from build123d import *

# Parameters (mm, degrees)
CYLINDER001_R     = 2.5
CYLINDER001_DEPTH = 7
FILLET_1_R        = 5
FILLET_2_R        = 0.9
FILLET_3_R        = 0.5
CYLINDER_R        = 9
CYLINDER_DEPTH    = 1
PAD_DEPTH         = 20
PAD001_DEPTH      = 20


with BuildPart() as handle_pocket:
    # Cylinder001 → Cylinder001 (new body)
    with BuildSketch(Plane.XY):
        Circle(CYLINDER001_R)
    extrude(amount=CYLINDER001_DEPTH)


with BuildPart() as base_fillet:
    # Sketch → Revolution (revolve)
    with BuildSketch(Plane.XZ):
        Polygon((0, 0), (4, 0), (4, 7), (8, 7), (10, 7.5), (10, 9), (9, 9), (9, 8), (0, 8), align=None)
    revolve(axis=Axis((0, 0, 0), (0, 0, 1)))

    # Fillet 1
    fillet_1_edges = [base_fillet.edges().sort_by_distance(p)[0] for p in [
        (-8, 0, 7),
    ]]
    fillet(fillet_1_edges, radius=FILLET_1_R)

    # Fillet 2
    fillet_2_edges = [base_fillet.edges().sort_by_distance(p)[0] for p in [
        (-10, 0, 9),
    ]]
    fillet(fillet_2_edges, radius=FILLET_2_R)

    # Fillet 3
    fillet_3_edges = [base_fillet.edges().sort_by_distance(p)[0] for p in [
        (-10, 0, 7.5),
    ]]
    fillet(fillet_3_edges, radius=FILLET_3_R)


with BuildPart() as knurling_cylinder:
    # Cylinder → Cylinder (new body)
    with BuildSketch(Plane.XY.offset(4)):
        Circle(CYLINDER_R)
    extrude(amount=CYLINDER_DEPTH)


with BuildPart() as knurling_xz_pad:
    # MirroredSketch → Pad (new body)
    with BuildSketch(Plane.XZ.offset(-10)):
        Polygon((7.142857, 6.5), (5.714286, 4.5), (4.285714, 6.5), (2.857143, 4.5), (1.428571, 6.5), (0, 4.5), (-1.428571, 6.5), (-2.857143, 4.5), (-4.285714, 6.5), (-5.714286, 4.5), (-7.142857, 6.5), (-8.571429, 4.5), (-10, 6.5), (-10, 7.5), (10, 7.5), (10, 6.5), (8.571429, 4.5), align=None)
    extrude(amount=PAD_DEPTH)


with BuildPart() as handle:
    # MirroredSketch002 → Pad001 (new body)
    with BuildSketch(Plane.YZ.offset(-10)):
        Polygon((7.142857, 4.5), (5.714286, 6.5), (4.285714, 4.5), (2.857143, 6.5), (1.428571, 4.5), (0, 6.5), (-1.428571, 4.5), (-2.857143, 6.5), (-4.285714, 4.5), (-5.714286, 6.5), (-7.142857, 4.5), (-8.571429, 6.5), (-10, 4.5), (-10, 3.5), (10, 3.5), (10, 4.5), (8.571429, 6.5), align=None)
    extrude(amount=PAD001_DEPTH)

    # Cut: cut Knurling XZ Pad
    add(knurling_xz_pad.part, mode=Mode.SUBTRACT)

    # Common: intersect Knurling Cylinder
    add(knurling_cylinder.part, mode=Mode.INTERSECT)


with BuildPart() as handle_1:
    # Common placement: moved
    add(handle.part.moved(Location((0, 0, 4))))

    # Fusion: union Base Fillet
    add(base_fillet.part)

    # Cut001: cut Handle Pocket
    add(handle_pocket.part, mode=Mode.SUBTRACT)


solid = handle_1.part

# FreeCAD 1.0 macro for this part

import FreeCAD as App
import Part
import Sketcher

V = App.Vector
Q = App.Units.Quantity


def edges_at(feature, points):
    """Names of the edges that pass closest to the given points."""
    edges = feature.Shape.Edges
    near = lambda p: min(range(len(edges)), key=lambda i: edges[i].distToShape(Part.Vertex(*p))[0])
    return sorted({f"Edge{near(p) + 1}" for p in points})


def add_polygon(sketch, points):
    """Adds a closed chain of lines whose ends are joined by coincident constraints."""
    first, n = sketch.GeometryCount, len(points)
    for a, b in zip(points, points[1:] + points[:1]):
        sketch.addGeometry(Part.LineSegment(App.Vector(*a, 0), App.Vector(*b, 0)), False)
    for i in range(n):
        sketch.addConstraint(Sketcher.Constraint("Coincident", first + i, 2, first + (i + 1) % n, 1))

doc = App.newDocument("Part")
body = doc.addObject("PartDesign::Body", "Body")

# Sketch on XY plane
sketch1 = body.newObject("Sketcher::SketchObject", "Sketch")
sketch1.AttachmentSupport = (doc.getObject("XY_Plane"), [""])
sketch1.MapMode = "FlatFace"
sketch1.addGeometry(Part.Circle(V(0, 0, 0), V(0, 0, 1), 2.5), False)
sketch1.addConstraint([
    Sketcher.Constraint("Coincident", 0, 3, -1, 1),
    Sketcher.Constraint("Diameter", 0, Q("5 mm")),
])
pad1 = body.newObject("PartDesign::Pad", "Pad")
pad1.Profile = sketch1
pad1.Length = 7
body2 = doc.addObject("PartDesign::Body", "Body001")

# Sketch on XZ plane
sketch2 = body2.newObject("Sketcher::SketchObject", "Sketch001")
sketch2.AttachmentSupport = (doc.getObject("XZ_Plane001"), [""])
sketch2.MapMode = "FlatFace"
add_polygon(sketch2, [(0, 0), (4, 0), (4, 7), (8, 7), (10, 7.5), (10, 9), (9, 9), (9, 8), (0, 8)])  # lines 0-8
sketch2.addConstraint([
    Sketcher.Constraint("Horizontal", 0),
    Sketcher.Constraint("Vertical", 1),
    Sketcher.Constraint("Horizontal", 2),
    Sketcher.Constraint("Vertical", 4),
    Sketcher.Constraint("Horizontal", 5),
    Sketcher.Constraint("Vertical", 6),
    Sketcher.Constraint("Horizontal", 7),
    Sketcher.Constraint("Vertical", 8),
    Sketcher.Constraint("Coincident", 8, 2, -1, 1),
    Sketcher.Constraint("Equal", 0, 2),
    Sketcher.Constraint("Equal", 5, 6),
    Sketcher.Constraint("DistanceX", 0, 1, 0, 2, Q("4 mm")),
    Sketcher.Constraint("DistanceX", 5, 2, 5, 1, Q("1 mm")),
    Sketcher.Constraint("DistanceX", 7, 2, 7, 1, Q("9 mm")),
    Sketcher.Constraint("DistanceY", 1, 1, 1, 2, Q("7 mm")),
    Sketcher.Constraint("DistanceY", 8, 2, 8, 1, Q("8 mm")),
    Sketcher.Constraint("DistanceY", 4, 1, 4, 2, Q("1.5 mm")),
])
revolution = body2.newObject("PartDesign::Revolution", "Revolution")
revolution.Profile = sketch2
revolution.ReferenceAxis = (sketch2, ["V_Axis"])
revolution.Angle = 360
doc.recompute()

fillet = body2.newObject("PartDesign::Fillet", "Fillet")
fillet.Base = (revolution, edges_at(revolution, [(-8, 0, 7)]))
fillet.Radius = 5
doc.recompute()

fillet2 = body2.newObject("PartDesign::Fillet", "Fillet001")
fillet2.Base = (fillet, edges_at(fillet, [(-10, 0, 9)]))
fillet2.Radius = 0.9
doc.recompute()

fillet3 = body2.newObject("PartDesign::Fillet", "Fillet002")
fillet3.Base = (fillet2, edges_at(fillet2, [(-10, 0, 7.5)]))
fillet3.Radius = 0.5
body3 = doc.addObject("PartDesign::Body", "Body002")

# Sketch on XY plane
sketch3 = body3.newObject("Sketcher::SketchObject", "Sketch002")
sketch3.AttachmentSupport = (doc.getObject("XY_Plane002"), [""])
sketch3.MapMode = "FlatFace"
sketch3.AttachmentOffset = App.Placement(V(0, 0, 4), App.Rotation())
sketch3.addGeometry(Part.Circle(V(0, 0, 0), V(0, 0, 1), 9), False)
sketch3.addConstraint([
    Sketcher.Constraint("Coincident", 0, 3, -1, 1),
    Sketcher.Constraint("Diameter", 0, Q("18 mm")),
])
pad2 = body3.newObject("PartDesign::Pad", "Pad001")
pad2.Profile = sketch3
pad2.Length = 1
body4 = doc.addObject("PartDesign::Body", "Body003")

# Sketch on XZ plane
sketch4 = body4.newObject("Sketcher::SketchObject", "Sketch003")
sketch4.AttachmentSupport = (doc.getObject("XZ_Plane003"), [""])
sketch4.MapMode = "FlatFace"
sketch4.AttachmentOffset = App.Placement(V(0, 0, -10), App.Rotation())
add_polygon(sketch4, [(5.7, 4.5), (7.1, 6.5), (8.6, 4.5), (10, 6.5), (10, 7.5), (-10, 7.5), (-10, 6.5), (-8.6, 4.5), (-7.1, 6.5), (-5.7, 4.5), (-4.3, 6.5), (-2.9, 4.5), (-1.4, 6.5), (0, 4.5), (1.4, 6.5), (2.9, 4.5), (4.3, 6.5)])  # lines 0-16
sketch4.addConstraint([
    Sketcher.Constraint("Vertical", 3),
    Sketcher.Constraint("Horizontal", 4),
    Sketcher.Constraint("Vertical", 5),
    Sketcher.Constraint("Symmetric", 2, 2, 5, 2, -2),
    Sketcher.Constraint("Symmetric", 1, 2, 6, 2, -2),
    Sketcher.Constraint("Symmetric", 0, 2, 7, 2, -2),
    Sketcher.Constraint("Symmetric", 11, 2, 13, 2, -2),
    Sketcher.Constraint("Symmetric", 10, 2, 14, 2, -2),
    Sketcher.Constraint("Symmetric", 9, 2, 15, 2, -2),
    Sketcher.Constraint("Symmetric", 8, 2, 16, 2, -2),
    Sketcher.Constraint("PointOnObject", 12, 2, -2),
    Sketcher.Constraint("Parallel", 0, 2),
    Sketcher.Constraint("Parallel", 1, 6),
    Sketcher.Constraint("Parallel", 7, 9),
    Sketcher.Constraint("Parallel", 8, 10),
    Sketcher.Constraint("Parallel", 9, 11),
    Sketcher.Constraint("Parallel", 10, 12),
    Sketcher.Constraint("Horizontal", 0, 2, 2, 2),
    Sketcher.Constraint("Horizontal", 6, 2, 8, 2),
    Sketcher.Constraint("Horizontal", 7, 2, 9, 2),
    Sketcher.Constraint("Horizontal", 8, 2, 10, 2),
    Sketcher.Constraint("Horizontal", 9, 2, 11, 2),
    Sketcher.Constraint("Horizontal", 10, 2, 12, 2),
    Sketcher.Constraint("DistanceX", 4, 2, 4, 1, Q("20 mm")),
    Sketcher.Constraint("DistanceY", 3, 1, 3, 2, Q("1 mm")),
    Sketcher.Constraint("DistanceY", 1, 2, 0, 2, Q("2 mm")),
    Sketcher.Constraint("DistanceY", -1, 1, 0, 2, Q("6.5 mm")),
])
pad3 = body4.newObject("PartDesign::Pad", "Pad002")
pad3.Profile = sketch4
pad3.Length = 20
body5 = doc.addObject("PartDesign::Body", "Body004")

# Sketch on YZ plane
sketch5 = body5.newObject("Sketcher::SketchObject", "Sketch004")
sketch5.AttachmentSupport = (doc.getObject("YZ_Plane004"), [""])
sketch5.MapMode = "FlatFace"
sketch5.AttachmentOffset = App.Placement(V(0, 0, -10), App.Rotation())
add_polygon(sketch5, [(7.1, 4.5), (5.7, 6.5), (4.3, 4.5), (2.9, 6.5), (1.4, 4.5), (0, 6.5), (-1.4, 4.5), (-2.9, 6.5), (-4.3, 4.5), (-5.7, 6.5), (-7.1, 4.5), (-8.6, 6.5), (-10, 4.5), (-10, 3.5), (10, 3.5), (10, 4.5), (8.6, 6.5)])  # lines 0-16
sketch5.addConstraint([
    Sketcher.Constraint("Vertical", 12),
    Sketcher.Constraint("Horizontal", 13),
    Sketcher.Constraint("Vertical", 14),
    Sketcher.Constraint("Symmetric", 3, 2, 5, 2, -2),
    Sketcher.Constraint("Symmetric", 2, 2, 6, 2, -2),
    Sketcher.Constraint("Symmetric", 1, 2, 7, 2, -2),
    Sketcher.Constraint("Symmetric", 0, 2, 8, 2, -2),
    Sketcher.Constraint("Symmetric", 11, 2, 14, 2, -2),
    Sketcher.Constraint("Symmetric", 10, 2, 15, 2, -2),
    Sketcher.Constraint("Symmetric", 9, 2, 16, 2, -2),
    Sketcher.Constraint("PointOnObject", 4, 2, -2),
    Sketcher.Constraint("Parallel", 0, 2),
    Sketcher.Constraint("Parallel", 1, 3),
    Sketcher.Constraint("Parallel", 2, 4),
    Sketcher.Constraint("Parallel", 3, 5),
    Sketcher.Constraint("Parallel", 8, 10),
    Sketcher.Constraint("Parallel", 9, 11),
    Sketcher.Constraint("Horizontal", 0, 2, 2, 2),
    Sketcher.Constraint("Horizontal", 1, 2, 3, 2),
    Sketcher.Constraint("Horizontal", 2, 2, 4, 2),
    Sketcher.Constraint("Horizontal", 7, 2, 9, 2),
    Sketcher.Constraint("Horizontal", 8, 2, 10, 2),
    Sketcher.Constraint("Horizontal", 9, 2, 11, 2),
    Sketcher.Constraint("DistanceX", 13, 1, 13, 2, Q("20 mm")),
    Sketcher.Constraint("DistanceY", 12, 2, 12, 1, Q("1 mm")),
    Sketcher.Constraint("DistanceY", 1, 2, 0, 2, Q("2 mm")),
    Sketcher.Constraint("DistanceY", -1, 1, 0, 2, Q("6.5 mm")),
])
pad4 = body5.newObject("PartDesign::Pad", "Pad003")
pad4.Profile = sketch5
pad4.Length = 20
doc.recompute()

boolean = body5.newObject("PartDesign::Boolean", "Boolean")
boolean.Type = "Cut"
boolean.addObjects([body4])
doc.recompute()

boolean2 = body5.newObject("PartDesign::Boolean", "Boolean001")
boolean2.Type = "Common"
boolean2.addObjects([body3])
body6 = doc.addObject("PartDesign::Body", "Body005")
doc.recompute()

body5.Placement = App.Placement(V(0, 0, 4), App.Rotation(V(0, 0, 1), 0))
boolean3 = body6.newObject("PartDesign::Boolean", "Boolean002")
boolean3.Type = "Fuse"
boolean3.addObjects([body5])
doc.recompute()

boolean4 = body6.newObject("PartDesign::Boolean", "Boolean003")
boolean4.Type = "Fuse"
boolean4.addObjects([body2])
doc.recompute()

boolean5 = body6.newObject("PartDesign::Boolean", "Boolean004")
boolean5.Type = "Cut"
boolean5.addObjects([body])

doc.recompute()
